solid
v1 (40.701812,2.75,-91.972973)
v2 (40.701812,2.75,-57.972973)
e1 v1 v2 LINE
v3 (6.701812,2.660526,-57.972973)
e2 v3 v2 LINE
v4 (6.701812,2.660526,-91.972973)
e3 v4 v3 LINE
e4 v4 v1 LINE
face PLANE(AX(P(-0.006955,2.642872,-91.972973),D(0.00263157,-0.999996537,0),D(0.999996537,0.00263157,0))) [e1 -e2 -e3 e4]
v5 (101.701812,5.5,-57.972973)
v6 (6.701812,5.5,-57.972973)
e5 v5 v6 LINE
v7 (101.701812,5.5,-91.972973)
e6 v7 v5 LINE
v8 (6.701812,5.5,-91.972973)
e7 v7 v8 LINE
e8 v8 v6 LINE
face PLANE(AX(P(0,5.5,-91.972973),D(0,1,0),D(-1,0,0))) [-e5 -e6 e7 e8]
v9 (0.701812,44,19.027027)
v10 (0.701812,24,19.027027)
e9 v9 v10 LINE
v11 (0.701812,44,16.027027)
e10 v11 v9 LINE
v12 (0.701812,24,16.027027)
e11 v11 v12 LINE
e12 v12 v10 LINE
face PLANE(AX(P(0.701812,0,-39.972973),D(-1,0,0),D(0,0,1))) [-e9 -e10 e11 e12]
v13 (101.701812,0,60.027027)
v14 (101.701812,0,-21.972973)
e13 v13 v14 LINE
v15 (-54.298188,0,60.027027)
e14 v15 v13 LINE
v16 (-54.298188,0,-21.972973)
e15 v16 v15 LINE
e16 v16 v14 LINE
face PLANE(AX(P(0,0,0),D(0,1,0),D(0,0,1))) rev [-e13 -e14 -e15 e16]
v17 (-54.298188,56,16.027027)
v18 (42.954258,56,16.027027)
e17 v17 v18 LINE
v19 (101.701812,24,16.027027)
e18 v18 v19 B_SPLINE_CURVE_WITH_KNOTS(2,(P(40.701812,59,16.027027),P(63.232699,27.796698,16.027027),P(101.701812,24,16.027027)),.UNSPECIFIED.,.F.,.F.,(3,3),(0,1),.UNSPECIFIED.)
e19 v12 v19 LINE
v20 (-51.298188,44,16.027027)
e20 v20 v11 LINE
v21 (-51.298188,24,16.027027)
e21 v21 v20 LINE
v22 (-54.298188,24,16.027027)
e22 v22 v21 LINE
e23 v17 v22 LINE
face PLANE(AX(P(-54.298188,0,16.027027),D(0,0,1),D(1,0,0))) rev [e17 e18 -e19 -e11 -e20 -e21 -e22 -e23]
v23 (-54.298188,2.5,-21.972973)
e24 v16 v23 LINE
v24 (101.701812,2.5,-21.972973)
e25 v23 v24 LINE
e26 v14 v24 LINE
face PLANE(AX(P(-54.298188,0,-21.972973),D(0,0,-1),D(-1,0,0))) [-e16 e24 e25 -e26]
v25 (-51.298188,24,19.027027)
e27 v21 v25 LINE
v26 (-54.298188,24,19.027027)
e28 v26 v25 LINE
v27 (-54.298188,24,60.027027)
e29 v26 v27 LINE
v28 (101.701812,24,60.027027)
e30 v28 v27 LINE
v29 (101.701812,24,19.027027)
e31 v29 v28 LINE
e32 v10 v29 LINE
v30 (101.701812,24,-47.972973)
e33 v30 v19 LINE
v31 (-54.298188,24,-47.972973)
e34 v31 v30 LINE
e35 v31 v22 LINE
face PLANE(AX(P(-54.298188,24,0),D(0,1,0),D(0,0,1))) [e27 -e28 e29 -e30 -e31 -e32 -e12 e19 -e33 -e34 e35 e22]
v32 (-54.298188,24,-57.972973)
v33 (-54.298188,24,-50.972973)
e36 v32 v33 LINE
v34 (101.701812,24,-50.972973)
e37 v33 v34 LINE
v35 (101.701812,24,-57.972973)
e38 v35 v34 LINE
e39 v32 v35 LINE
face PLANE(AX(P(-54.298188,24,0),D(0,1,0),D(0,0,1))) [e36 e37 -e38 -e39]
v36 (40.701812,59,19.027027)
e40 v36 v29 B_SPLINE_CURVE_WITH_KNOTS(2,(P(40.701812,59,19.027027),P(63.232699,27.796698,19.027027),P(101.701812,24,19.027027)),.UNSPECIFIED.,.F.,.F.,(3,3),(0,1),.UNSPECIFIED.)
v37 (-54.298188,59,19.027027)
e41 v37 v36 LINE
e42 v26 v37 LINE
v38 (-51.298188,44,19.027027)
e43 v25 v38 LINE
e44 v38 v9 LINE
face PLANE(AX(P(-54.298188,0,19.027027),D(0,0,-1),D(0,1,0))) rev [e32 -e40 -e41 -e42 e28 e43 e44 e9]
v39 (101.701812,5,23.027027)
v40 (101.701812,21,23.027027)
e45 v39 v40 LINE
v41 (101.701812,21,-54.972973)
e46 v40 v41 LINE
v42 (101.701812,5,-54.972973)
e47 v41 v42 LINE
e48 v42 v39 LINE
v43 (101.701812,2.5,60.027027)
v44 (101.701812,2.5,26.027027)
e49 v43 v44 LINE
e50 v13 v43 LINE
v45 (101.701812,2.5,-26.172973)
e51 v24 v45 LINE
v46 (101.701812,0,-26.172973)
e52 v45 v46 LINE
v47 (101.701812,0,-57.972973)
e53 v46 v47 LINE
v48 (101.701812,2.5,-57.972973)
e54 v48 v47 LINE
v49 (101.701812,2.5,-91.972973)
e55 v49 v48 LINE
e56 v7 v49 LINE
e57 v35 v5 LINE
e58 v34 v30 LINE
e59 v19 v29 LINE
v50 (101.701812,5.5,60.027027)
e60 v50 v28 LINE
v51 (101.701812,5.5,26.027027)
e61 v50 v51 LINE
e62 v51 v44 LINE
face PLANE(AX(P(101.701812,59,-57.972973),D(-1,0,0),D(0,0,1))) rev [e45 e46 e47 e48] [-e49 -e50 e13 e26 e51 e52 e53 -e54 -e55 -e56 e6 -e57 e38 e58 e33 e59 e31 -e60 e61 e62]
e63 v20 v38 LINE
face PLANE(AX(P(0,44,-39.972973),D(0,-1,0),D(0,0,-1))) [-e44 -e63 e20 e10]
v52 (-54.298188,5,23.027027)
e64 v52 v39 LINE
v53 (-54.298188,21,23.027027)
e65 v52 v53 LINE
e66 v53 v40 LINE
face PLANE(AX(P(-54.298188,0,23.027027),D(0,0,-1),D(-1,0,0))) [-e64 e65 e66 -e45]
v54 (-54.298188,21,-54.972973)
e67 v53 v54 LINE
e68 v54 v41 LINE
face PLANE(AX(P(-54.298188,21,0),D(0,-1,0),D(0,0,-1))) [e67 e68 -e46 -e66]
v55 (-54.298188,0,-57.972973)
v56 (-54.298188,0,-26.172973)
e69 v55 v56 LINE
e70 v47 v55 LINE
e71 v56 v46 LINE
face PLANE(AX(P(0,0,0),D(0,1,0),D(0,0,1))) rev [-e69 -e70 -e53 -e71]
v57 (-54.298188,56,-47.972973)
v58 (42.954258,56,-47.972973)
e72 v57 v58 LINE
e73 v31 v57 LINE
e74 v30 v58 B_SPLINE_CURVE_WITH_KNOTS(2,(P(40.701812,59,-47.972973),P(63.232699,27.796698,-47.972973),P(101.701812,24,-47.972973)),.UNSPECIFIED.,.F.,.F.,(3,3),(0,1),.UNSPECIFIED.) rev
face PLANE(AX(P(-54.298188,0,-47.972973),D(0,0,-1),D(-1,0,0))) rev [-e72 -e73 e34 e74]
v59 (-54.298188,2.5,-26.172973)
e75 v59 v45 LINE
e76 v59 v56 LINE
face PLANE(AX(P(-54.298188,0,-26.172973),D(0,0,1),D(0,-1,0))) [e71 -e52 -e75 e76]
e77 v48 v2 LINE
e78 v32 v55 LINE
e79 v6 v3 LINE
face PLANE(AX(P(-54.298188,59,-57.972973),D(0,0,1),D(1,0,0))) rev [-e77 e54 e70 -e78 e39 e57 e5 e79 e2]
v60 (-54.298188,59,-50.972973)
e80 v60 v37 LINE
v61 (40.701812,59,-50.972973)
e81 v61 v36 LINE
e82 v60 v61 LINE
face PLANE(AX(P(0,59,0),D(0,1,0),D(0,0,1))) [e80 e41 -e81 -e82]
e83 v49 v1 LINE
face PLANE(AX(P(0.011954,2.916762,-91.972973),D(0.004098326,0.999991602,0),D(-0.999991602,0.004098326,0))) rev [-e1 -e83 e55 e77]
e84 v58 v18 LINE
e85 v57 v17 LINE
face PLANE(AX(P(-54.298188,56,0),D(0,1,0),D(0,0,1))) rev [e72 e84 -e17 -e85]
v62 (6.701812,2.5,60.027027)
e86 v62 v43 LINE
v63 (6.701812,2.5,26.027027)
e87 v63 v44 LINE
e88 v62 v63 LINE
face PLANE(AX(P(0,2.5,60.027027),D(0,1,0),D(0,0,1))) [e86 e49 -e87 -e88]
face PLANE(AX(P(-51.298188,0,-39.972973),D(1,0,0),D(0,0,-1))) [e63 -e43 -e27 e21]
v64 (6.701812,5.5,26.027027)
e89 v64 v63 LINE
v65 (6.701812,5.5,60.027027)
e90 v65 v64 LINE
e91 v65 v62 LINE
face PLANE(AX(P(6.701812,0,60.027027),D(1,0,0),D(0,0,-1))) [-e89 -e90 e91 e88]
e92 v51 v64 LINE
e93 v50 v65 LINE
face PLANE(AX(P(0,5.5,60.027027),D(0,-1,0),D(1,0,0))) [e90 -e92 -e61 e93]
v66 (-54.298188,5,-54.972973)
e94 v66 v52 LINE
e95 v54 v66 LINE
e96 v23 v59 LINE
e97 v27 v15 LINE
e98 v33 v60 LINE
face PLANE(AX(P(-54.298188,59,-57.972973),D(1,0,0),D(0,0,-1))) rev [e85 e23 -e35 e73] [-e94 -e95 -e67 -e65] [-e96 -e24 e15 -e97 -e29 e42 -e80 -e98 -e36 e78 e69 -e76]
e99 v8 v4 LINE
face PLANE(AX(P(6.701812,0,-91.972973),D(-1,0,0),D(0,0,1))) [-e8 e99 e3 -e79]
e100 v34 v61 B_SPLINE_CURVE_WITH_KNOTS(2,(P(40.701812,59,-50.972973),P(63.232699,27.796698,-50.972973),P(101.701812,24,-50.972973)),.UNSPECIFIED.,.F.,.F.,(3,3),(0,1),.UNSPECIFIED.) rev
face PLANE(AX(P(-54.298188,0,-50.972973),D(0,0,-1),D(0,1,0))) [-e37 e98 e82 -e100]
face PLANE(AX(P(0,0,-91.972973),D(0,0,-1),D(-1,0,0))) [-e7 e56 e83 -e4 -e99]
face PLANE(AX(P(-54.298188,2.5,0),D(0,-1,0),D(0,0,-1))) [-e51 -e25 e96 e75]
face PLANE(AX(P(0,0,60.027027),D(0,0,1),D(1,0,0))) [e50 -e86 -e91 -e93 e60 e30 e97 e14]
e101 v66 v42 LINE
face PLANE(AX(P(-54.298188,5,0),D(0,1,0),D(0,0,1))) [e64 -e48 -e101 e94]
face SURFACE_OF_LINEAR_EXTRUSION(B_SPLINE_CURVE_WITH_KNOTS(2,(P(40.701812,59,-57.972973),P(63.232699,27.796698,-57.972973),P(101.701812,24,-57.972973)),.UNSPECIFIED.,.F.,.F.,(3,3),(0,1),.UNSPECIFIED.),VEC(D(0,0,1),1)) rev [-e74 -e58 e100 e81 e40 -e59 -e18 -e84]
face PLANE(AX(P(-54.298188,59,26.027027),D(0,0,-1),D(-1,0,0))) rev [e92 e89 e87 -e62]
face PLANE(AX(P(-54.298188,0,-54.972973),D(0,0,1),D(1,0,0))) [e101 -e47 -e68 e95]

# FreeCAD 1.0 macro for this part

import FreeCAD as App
import Part
import Sketcher


def add_polygon(sketch, points):
    """Adds a closed chain of lines whose ends are joined by coincident constraints."""
    first, n = sketch.GeometryCount, len(points)
    for a, b in zip(points, points[1:] + points[:1]):
        sketch.addGeometry(Part.LineSegment(App.Vector(*a, 0), App.Vector(*b, 0)), False)
    for i in range(n):
        sketch.addConstraint(Sketcher.Constraint("Coincident", first + i, 2, first + (i + 1) % n, 1))

doc = App.newDocument("Part")
params = doc.addObject("Spreadsheet::Sheet", "Params")
for row, (alias, value) in enumerate([
    ("sketch1_width", "156 mm"),
    ("sketch1_height", "84 mm"),
    ("pad1_length", "59 mm"),
    ("sketch2_width", "32 mm"),
    ("sketch2_width2", "16 mm"),
    ("sketch2_width3", "35 mm"),
    ("sketch2_height", "64 mm"),
    ("sketch2_height2", "78 mm"),
    ("sketch4_width", "52 mm"),
    ("sketch4_height", "20 mm"),
    ("pocket3_length", "59 mm"),
    ("sketch5_width", "95 mm"),
    ("sketch5_height", "3 mm"),
    ("pad2_length", "34 mm"),
    ("sketch6_width", "156 mm"),
    ("sketch6_width2", "95 mm"),
    ("sketch6_height", "3 mm"),
    ("sketch6_height2", "24 mm"),
    ("sketch6_height3", "2.5 mm"),
    ("pad3_length", "34 mm"),
], start=1):
    params.set(f"A{row}", alias)
    params.set(f"B{row}", "=" + value)
    params.setAlias(f"B{row}", alias)

body = doc.addObject("PartDesign::Body", "Body")

sketch1 = doc.addObject("Sketcher::SketchObject", "Sketch")
body.addObject(sketch1)
sketch1.AttachmentSupport = (doc.XZ_Plane, [""])
sketch1.MapMode = "FlatFace"
add_polygon(sketch1, [(-54, -58), (-54, 26), (102, 26), (102, -58)])
sketch1.addConstraint([
    Sketcher.Constraint("Vertical", 0),
    Sketcher.Constraint("Horizontal", 1),
    Sketcher.Constraint("Vertical", 2),
    Sketcher.Constraint("Horizontal", 3),
    Sketcher.Constraint("DistanceX", 1, 1, 1, 2, 156.0),
    Sketcher.Constraint("DistanceY", 0, 1, 0, 2, 84.0),
    Sketcher.Constraint("DistanceX", 0, 2, -1, 1, 54.298188),
    Sketcher.Constraint("DistanceY", -1, 1, 0, 2, 26.027027),
])
sketch1.setExpression("Constraints[8]", "Params.sketch1_width")
sketch1.setExpression("Constraints[9]", "Params.sketch1_height")
pad1 = doc.addObject("PartDesign::Pad", "Pad")
body.addObject(pad1)
pad1.Profile = sketch1
pad1.setExpression("Length", "Params.pad1_length")
pad1.Reversed = True

sketch2 = doc.addObject("Sketcher::SketchObject", "Sketch001")
body.addObject(sketch2)
sketch2.AttachmentSupport = (doc.YZ_Plane, [""])
sketch2.MapMode = "FlatFace"
sketch2.AttachmentOffset = App.Placement(App.Vector(0, 0, 101.701812), App.Rotation())
add_polygon(sketch2, [(24, -48), (56, -48), (56, 16), (24, 16)])
add_polygon(sketch2, [(21, 23), (5, 23), (5, -55), (21, -55)])
add_polygon(sketch2, [(59, 26), (24, 26), (24, 19), (59, 19)])
add_polygon(sketch2, [(24, -58), (59, -58), (59, -51), (24, -51)])
add_polygon(sketch2, [(2.5, -22), (0, -22), (0, -26.2), (2.5, -26.2)])
sketch2.addConstraint([
    Sketcher.Constraint("Horizontal", 0),
    Sketcher.Constraint("Vertical", 1),
    Sketcher.Constraint("Horizontal", 2),
    Sketcher.Constraint("Vertical", 3),
    Sketcher.Constraint("Horizontal", 4),
    Sketcher.Constraint("Vertical", 5),
    Sketcher.Constraint("Horizontal", 6),
    Sketcher.Constraint("Vertical", 7),
    Sketcher.Constraint("Horizontal", 8),
    Sketcher.Constraint("Vertical", 9),
    Sketcher.Constraint("Horizontal", 10),
    Sketcher.Constraint("Vertical", 11),
    Sketcher.Constraint("Horizontal", 12),
    Sketcher.Constraint("Vertical", 13),
    Sketcher.Constraint("Horizontal", 14),
    Sketcher.Constraint("Vertical", 15),
    Sketcher.Constraint("Horizontal", 16),
    Sketcher.Constraint("Vertical", 17),
    Sketcher.Constraint("Horizontal", 18),
    Sketcher.Constraint("Vertical", 19),
    Sketcher.Constraint("PointOnObject", 16, 2, -2),
    Sketcher.Constraint("Vertical", 3, 2, 8, 2),
    Sketcher.Constraint("Vertical", 11, 2, 12, 2),
    Sketcher.Constraint("Vertical", 9, 2, 14, 2),
    Sketcher.Constraint("Equal", 11, 13),
    Sketcher.Constraint("DistanceX", 0, 1, 0, 2, 32.0),
    Sketcher.Constraint("DistanceX", 4, 2, 4, 1, 16.0),
    Sketcher.Constraint("DistanceX", 8, 2, 8, 1, 35.0),
    Sketcher.Constraint("DistanceY", 1, 1, 1, 2, 64.0),
    Sketcher.Constraint("DistanceY", 5, 2, 5, 1, 78.0),
    Sketcher.Constraint("DistanceY", 9, 2, 9, 1, 7.0),
    Sketcher.Constraint("DistanceX", 16, 2, 16, 1, 2.5),
    Sketcher.Constraint("DistanceY", 17, 2, 17, 1, 4.2),
    Sketcher.Constraint("DistanceX", -1, 1, 0, 2, 56.0),
    Sketcher.Constraint("DistanceX", -1, 1, 4, 2, 5.0),
    Sketcher.Constraint("DistanceY", 2, 2, 4, 2, 7.0),
    Sketcher.Constraint("DistanceY", 7, 2, 8, 2, 3.0),
    Sketcher.Constraint("DistanceY", 12, 2, 0, 2, 10.0),
    Sketcher.Constraint("DistanceY", 5, 2, 16, 2, 33.0),
    Sketcher.Constraint("DistanceY", 0, 2, -1, 1, 47.972973),
])
sketch2.setExpression("Constraints[45]", "Params.sketch2_width")
sketch2.setExpression("Constraints[46]", "Params.sketch2_width2")
sketch2.setExpression("Constraints[47]", "Params.sketch2_width3")
sketch2.setExpression("Constraints[48]", "Params.sketch2_height")
sketch2.setExpression("Constraints[49]", "Params.sketch2_height2")
pocket1 = doc.addObject("PartDesign::Pocket", "Pocket")
body.addObject(pocket1)
pocket1.Profile = sketch2
pocket1.Type = "ThroughAll"

sketch3 = doc.addObject("Sketcher::SketchObject", "Sketch002")
body.addObject(sketch3)
sketch3.AttachmentSupport = (doc.XY_Plane, [""])
sketch3.MapMode = "FlatFace"
sketch3.AttachmentOffset = App.Placement(App.Vector(0, 0, 19.027027), App.Rotation())
sketch3.addGeometry([
    Part.LineSegment(App.Vector(101.701812, 59, 0), App.Vector(40.701812, 59, 0)),
    Part.BSplineCurve([App.Vector(40.701812, 59, 0), App.Vector(63.232699, 27.796698, 0), App.Vector(101.701812, 24, 0)], [3, 3], [0, 1], False, 2, [1, 1, 1], False),
    Part.LineSegment(App.Vector(101.701812, 24, 0), App.Vector(101.701812, 59, 0)),
], False)
sketch3.addConstraint([
    Sketcher.Constraint("Block", 1),
    Sketcher.Constraint("Coincident", 0, 2, 1, 1),
    Sketcher.Constraint("Coincident", 1, 2, 2, 1),
    Sketcher.Constraint("Coincident", 2, 2, 0, 1),
    Sketcher.Constraint("Horizontal", 0),
    Sketcher.Constraint("Vertical", 2),
])
pocket2 = doc.addObject("PartDesign::Pocket", "Pocket001")
body.addObject(pocket2)
pocket2.Profile = sketch3
pocket2.Type = "ThroughAll"

sketch4 = doc.addObject("Sketcher::SketchObject", "Sketch003")
body.addObject(sketch4)
sketch4.AttachmentSupport = (doc.XY_Plane, [""])
sketch4.MapMode = "FlatFace"
sketch4.AttachmentOffset = App.Placement(App.Vector(0, 0, 19.027027), App.Rotation())
add_polygon(sketch4, [(-51, 44), (-51, 24), (1, 24), (1, 44)])
sketch4.addConstraint([
    Sketcher.Constraint("Vertical", 0),
    Sketcher.Constraint("Horizontal", 1),
    Sketcher.Constraint("Vertical", 2),
    Sketcher.Constraint("Horizontal", 3),
    Sketcher.Constraint("DistanceX", 1, 1, 1, 2, 52.0),
    Sketcher.Constraint("DistanceY", 0, 2, 0, 1, 20.0),
    Sketcher.Constraint("DistanceY", -1, 1, 0, 2, 24.0),
    Sketcher.Constraint("DistanceX", 0, 2, -1, 1, 51.298188),
])
sketch4.setExpression("Constraints[8]", "Params.sketch4_width")
sketch4.setExpression("Constraints[9]", "Params.sketch4_height")
pocket3 = doc.addObject("PartDesign::Pocket", "Pocket002")
body.addObject(pocket3)
pocket3.Profile = sketch4
pocket3.setExpression("Length", "Params.pocket3_length")

sketch5 = doc.addObject("Sketcher::SketchObject", "Sketch004")
body.addObject(sketch5)
sketch5.AttachmentSupport = (doc.XY_Plane, [""])
sketch5.MapMode = "FlatFace"
sketch5.AttachmentOffset = App.Placement(App.Vector(0, 0, -57.972973), App.Rotation())
add_polygon(sketch5, [(101.7, 2.5), (40.7, 2.8), (6.7, 2.7), (6.7, 5.5), (101.7, 5.5)])
sketch5.addConstraint([
    Sketcher.Constraint("Vertical", 2),
    Sketcher.Constraint("Horizontal", 3),
    Sketcher.Constraint("Vertical", 4),
    Sketcher.Constraint("DistanceX", 3, 1, 3, 2, 95.0),
    Sketcher.Constraint("DistanceY", 4, 2, 4, 1, 3.0),
    Sketcher.Constraint("DistanceX", 1, 2, 0, 2, 34.0),
    Sketcher.Constraint("DistanceY", -1, 1, 2, 2, 5.5),
    Sketcher.Constraint("DistanceY", -1, 1, 0, 2, 2.75),
    Sketcher.Constraint("DistanceY", 2, 1, 2, 2, 2.839474),
    Sketcher.Constraint("DistanceX", -1, 1, 0, 2, 40.701812),
])
sketch5.setExpression("Constraints[8]", "Params.sketch5_width")
sketch5.setExpression("Constraints[9]", "Params.sketch5_height")
pad2 = doc.addObject("PartDesign::Pad", "Pad001")
body.addObject(pad2)
pad2.Profile = sketch5
pad2.setExpression("Length", "Params.pad2_length")
pad2.Reversed = True

sketch6 = doc.addObject("Sketcher::SketchObject", "Sketch005")
body.addObject(sketch6)
sketch6.AttachmentSupport = (doc.XY_Plane, [""])
sketch6.MapMode = "FlatFace"
sketch6.AttachmentOffset = App.Placement(App.Vector(0, 0, 26.027027), App.Rotation())
add_polygon(sketch6, [(-54.3, 0), (101.7, 0), (101.7, 2.5), (6.7, 2.5), (6.7, 5.5), (101.7, 5.5), (101.7, 24), (-54.3, 24)])
sketch6.addConstraint([
    Sketcher.Constraint("Horizontal", 0),
    Sketcher.Constraint("Vertical", 1),
    Sketcher.Constraint("Horizontal", 2),
    Sketcher.Constraint("Vertical", 3),
    Sketcher.Constraint("Horizontal", 4),
    Sketcher.Constraint("Vertical", 5),
    Sketcher.Constraint("Horizontal", 6),
    Sketcher.Constraint("Vertical", 7),
    Sketcher.Constraint("PointOnObject", 0, 2, -1),
    Sketcher.Constraint("Vertical", 1, 2, 4, 2),
    Sketcher.Constraint("DistanceX", 0, 1, 0, 2, 156.0),
    Sketcher.Constraint("DistanceX", 2, 2, 2, 1, 95.0),
    Sketcher.Constraint("DistanceY", 3, 1, 3, 2, 3.0),
    Sketcher.Constraint("DistanceY", 7, 2, 7, 1, 24.0),
    Sketcher.Constraint("DistanceY", 1, 1, 1, 2, 2.5),
    Sketcher.Constraint("DistanceX", -1, 1, 0, 2, 101.701812),
])
sketch6.setExpression("Constraints[18]", "Params.sketch6_width")
sketch6.setExpression("Constraints[19]", "Params.sketch6_width2")
sketch6.setExpression("Constraints[20]", "Params.sketch6_height")
sketch6.setExpression("Constraints[21]", "Params.sketch6_height2")
sketch6.setExpression("Constraints[22]", "Params.sketch6_height3")
pad3 = doc.addObject("PartDesign::Pad", "Pad002")
body.addObject(pad3)
pad3.Profile = sketch6
pad3.setExpression("Length", "Params.pad3_length")

doc.recompute()
